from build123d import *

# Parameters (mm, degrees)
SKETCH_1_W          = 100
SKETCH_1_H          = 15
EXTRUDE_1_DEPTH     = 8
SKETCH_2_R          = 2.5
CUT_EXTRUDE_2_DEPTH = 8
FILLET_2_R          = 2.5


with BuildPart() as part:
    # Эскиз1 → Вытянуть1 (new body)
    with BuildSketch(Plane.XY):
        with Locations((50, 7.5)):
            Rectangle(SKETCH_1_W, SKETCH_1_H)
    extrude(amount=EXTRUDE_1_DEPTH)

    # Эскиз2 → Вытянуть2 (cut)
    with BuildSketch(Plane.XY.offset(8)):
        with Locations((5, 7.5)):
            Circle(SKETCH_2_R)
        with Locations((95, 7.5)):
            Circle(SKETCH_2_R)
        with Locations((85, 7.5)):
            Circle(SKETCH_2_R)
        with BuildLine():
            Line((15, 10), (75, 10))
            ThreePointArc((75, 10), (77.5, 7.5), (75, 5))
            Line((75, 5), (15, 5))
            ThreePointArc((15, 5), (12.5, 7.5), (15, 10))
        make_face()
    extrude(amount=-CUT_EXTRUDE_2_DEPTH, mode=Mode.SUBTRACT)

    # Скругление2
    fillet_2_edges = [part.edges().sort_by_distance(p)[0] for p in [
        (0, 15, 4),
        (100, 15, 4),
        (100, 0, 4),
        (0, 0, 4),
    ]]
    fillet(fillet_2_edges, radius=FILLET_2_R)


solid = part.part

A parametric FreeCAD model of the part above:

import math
import FreeCAD as App
import Part
import Sketcher
Q = App.Units.Quantity


def edges_at(feature, points):
    """Names of the edges that pass closest to the given points."""
    edges = feature.Shape.Edges
    near = lambda p: min(range(len(edges)), key=lambda i: edges[i].distToShape(Part.Vertex(*p))[0])
    return sorted({f"Edge{near(p) + 1}" for p in points})

doc = App.newDocument("Part")
body = doc.addObject("PartDesign::Body", "Body")

sketch1 = body.newObject("Sketcher::SketchObject", "Sketch")
sketch1.AttachmentSupport = (doc.getObject("XY_Plane"), [""])
sketch1.MapMode = "FlatFace"
sketch1.addGeometry([
    Part.LineSegment(App.Vector(0, 15, 0), App.Vector(0, 0, 0)),
    Part.LineSegment(App.Vector(0, 0, 0), App.Vector(100, 0, 0)),
    Part.LineSegment(App.Vector(100, 0, 0), App.Vector(100, 15, 0)),
    Part.LineSegment(App.Vector(100, 15, 0), App.Vector(0, 15, 0)),
], False)
sketch1.addConstraint([
    Sketcher.Constraint("Coincident", 0, 2, 1, 1),
    Sketcher.Constraint("Coincident", 1, 2, 2, 1),
    Sketcher.Constraint("Coincident", 2, 2, 3, 1),
    Sketcher.Constraint("Coincident", 3, 2, 0, 1),
    Sketcher.Constraint("Vertical", 0),
    Sketcher.Constraint("Horizontal", 1),
    Sketcher.Constraint("Vertical", 2),
    Sketcher.Constraint("Horizontal", 3),
    Sketcher.Constraint("Coincident", 0, 2, -1, 1),
    Sketcher.Constraint("DistanceX", 1, 1, 1, 2, Q("100 mm")),
    Sketcher.Constraint("DistanceY", 0, 2, 0, 1, Q("15 mm")),
])
pad1 = body.newObject("PartDesign::Pad", "Pad")
pad1.Profile = sketch1
pad1.Length = 8

sketch2 = body.newObject("Sketcher::SketchObject", "Sketch001")
sketch2.AttachmentSupport = (doc.getObject("XY_Plane"), [""])
sketch2.MapMode = "FlatFace"
sketch2.AttachmentOffset = App.Placement(App.Vector(0, 0, 8), App.Rotation())
sketch2.addGeometry([
    Part.Circle(App.Vector(5, 7.5, 0), App.Vector(0, 0, 1), 2.5),
    Part.Circle(App.Vector(95, 7.5, 0), App.Vector(0, 0, 1), 2.5),
    Part.Circle(App.Vector(85, 7.5, 0), App.Vector(0, 0, 1), 2.5),
    Part.LineSegment(App.Vector(75, 10, 0), App.Vector(15, 10, 0)),
    Part.ArcOfCircle(Part.Circle(App.Vector(15, 7.5, 0), App.Vector(0, 0, 1), 2.5), math.radians(90), math.radians(270)),
    Part.LineSegment(App.Vector(15, 5, 0), App.Vector(75, 5, 0)),
    Part.ArcOfCircle(Part.Circle(App.Vector(75, 7.5, 0), App.Vector(0, 0, 1), 2.5), math.radians(-90), math.radians(90)),
], False)
sketch2.addConstraint([
    Sketcher.Constraint("Tangent", 3, 2, 4, 1),
    Sketcher.Constraint("Tangent", 4, 2, 5, 1),
    Sketcher.Constraint("Tangent", 5, 2, 6, 1),
    Sketcher.Constraint("Tangent", 6, 2, 3, 1),
    Sketcher.Constraint("Horizontal", 3),
    Sketcher.Constraint("Horizontal", 5),
    Sketcher.Constraint("Equal", 0, 1),
    Sketcher.Constraint("Equal", 1, 2),
    Sketcher.Constraint("Equal", 2, 4),
    Sketcher.Constraint("Horizontal", 0, 3, 1, 3),
    Sketcher.Constraint("Horizontal", 1, 3, 2, 3),
    Sketcher.Constraint("Horizontal", 2, 3, 4, 3),
    Sketcher.Constraint("Diameter", 0, Q("5 mm")),
    Sketcher.Constraint("DistanceX", 3, 2, 3, 1, Q("60 mm")),
    Sketcher.Constraint("DistanceX", -1, 1, 0, 3, Q("5 mm")),
    Sketcher.Constraint("DistanceX", -1, 1, 1, 3, Q("95 mm")),
    Sketcher.Constraint("DistanceX", -1, 1, 2, 3, Q("85 mm")),
    Sketcher.Constraint("DistanceX", -1, 1, 4, 3, Q("15 mm")),
    Sketcher.Constraint("DistanceY", -1, 1, 3, 2, Q("10 mm")),
])
pocket1 = body.newObject("PartDesign::Pocket", "Pocket")
pocket1.Profile = sketch2
pocket1.Length = 8
doc.recompute()

fillet = body.newObject("PartDesign::Fillet", "Fillet")
fillet.Base = (pocket1, edges_at(pocket1, [
    (0, 15, 4),
    (100, 15, 4),
    (100, 0, 4),
    (0, 0, 4),
]))
fillet.Radius = 2.5

doc.recompute()
